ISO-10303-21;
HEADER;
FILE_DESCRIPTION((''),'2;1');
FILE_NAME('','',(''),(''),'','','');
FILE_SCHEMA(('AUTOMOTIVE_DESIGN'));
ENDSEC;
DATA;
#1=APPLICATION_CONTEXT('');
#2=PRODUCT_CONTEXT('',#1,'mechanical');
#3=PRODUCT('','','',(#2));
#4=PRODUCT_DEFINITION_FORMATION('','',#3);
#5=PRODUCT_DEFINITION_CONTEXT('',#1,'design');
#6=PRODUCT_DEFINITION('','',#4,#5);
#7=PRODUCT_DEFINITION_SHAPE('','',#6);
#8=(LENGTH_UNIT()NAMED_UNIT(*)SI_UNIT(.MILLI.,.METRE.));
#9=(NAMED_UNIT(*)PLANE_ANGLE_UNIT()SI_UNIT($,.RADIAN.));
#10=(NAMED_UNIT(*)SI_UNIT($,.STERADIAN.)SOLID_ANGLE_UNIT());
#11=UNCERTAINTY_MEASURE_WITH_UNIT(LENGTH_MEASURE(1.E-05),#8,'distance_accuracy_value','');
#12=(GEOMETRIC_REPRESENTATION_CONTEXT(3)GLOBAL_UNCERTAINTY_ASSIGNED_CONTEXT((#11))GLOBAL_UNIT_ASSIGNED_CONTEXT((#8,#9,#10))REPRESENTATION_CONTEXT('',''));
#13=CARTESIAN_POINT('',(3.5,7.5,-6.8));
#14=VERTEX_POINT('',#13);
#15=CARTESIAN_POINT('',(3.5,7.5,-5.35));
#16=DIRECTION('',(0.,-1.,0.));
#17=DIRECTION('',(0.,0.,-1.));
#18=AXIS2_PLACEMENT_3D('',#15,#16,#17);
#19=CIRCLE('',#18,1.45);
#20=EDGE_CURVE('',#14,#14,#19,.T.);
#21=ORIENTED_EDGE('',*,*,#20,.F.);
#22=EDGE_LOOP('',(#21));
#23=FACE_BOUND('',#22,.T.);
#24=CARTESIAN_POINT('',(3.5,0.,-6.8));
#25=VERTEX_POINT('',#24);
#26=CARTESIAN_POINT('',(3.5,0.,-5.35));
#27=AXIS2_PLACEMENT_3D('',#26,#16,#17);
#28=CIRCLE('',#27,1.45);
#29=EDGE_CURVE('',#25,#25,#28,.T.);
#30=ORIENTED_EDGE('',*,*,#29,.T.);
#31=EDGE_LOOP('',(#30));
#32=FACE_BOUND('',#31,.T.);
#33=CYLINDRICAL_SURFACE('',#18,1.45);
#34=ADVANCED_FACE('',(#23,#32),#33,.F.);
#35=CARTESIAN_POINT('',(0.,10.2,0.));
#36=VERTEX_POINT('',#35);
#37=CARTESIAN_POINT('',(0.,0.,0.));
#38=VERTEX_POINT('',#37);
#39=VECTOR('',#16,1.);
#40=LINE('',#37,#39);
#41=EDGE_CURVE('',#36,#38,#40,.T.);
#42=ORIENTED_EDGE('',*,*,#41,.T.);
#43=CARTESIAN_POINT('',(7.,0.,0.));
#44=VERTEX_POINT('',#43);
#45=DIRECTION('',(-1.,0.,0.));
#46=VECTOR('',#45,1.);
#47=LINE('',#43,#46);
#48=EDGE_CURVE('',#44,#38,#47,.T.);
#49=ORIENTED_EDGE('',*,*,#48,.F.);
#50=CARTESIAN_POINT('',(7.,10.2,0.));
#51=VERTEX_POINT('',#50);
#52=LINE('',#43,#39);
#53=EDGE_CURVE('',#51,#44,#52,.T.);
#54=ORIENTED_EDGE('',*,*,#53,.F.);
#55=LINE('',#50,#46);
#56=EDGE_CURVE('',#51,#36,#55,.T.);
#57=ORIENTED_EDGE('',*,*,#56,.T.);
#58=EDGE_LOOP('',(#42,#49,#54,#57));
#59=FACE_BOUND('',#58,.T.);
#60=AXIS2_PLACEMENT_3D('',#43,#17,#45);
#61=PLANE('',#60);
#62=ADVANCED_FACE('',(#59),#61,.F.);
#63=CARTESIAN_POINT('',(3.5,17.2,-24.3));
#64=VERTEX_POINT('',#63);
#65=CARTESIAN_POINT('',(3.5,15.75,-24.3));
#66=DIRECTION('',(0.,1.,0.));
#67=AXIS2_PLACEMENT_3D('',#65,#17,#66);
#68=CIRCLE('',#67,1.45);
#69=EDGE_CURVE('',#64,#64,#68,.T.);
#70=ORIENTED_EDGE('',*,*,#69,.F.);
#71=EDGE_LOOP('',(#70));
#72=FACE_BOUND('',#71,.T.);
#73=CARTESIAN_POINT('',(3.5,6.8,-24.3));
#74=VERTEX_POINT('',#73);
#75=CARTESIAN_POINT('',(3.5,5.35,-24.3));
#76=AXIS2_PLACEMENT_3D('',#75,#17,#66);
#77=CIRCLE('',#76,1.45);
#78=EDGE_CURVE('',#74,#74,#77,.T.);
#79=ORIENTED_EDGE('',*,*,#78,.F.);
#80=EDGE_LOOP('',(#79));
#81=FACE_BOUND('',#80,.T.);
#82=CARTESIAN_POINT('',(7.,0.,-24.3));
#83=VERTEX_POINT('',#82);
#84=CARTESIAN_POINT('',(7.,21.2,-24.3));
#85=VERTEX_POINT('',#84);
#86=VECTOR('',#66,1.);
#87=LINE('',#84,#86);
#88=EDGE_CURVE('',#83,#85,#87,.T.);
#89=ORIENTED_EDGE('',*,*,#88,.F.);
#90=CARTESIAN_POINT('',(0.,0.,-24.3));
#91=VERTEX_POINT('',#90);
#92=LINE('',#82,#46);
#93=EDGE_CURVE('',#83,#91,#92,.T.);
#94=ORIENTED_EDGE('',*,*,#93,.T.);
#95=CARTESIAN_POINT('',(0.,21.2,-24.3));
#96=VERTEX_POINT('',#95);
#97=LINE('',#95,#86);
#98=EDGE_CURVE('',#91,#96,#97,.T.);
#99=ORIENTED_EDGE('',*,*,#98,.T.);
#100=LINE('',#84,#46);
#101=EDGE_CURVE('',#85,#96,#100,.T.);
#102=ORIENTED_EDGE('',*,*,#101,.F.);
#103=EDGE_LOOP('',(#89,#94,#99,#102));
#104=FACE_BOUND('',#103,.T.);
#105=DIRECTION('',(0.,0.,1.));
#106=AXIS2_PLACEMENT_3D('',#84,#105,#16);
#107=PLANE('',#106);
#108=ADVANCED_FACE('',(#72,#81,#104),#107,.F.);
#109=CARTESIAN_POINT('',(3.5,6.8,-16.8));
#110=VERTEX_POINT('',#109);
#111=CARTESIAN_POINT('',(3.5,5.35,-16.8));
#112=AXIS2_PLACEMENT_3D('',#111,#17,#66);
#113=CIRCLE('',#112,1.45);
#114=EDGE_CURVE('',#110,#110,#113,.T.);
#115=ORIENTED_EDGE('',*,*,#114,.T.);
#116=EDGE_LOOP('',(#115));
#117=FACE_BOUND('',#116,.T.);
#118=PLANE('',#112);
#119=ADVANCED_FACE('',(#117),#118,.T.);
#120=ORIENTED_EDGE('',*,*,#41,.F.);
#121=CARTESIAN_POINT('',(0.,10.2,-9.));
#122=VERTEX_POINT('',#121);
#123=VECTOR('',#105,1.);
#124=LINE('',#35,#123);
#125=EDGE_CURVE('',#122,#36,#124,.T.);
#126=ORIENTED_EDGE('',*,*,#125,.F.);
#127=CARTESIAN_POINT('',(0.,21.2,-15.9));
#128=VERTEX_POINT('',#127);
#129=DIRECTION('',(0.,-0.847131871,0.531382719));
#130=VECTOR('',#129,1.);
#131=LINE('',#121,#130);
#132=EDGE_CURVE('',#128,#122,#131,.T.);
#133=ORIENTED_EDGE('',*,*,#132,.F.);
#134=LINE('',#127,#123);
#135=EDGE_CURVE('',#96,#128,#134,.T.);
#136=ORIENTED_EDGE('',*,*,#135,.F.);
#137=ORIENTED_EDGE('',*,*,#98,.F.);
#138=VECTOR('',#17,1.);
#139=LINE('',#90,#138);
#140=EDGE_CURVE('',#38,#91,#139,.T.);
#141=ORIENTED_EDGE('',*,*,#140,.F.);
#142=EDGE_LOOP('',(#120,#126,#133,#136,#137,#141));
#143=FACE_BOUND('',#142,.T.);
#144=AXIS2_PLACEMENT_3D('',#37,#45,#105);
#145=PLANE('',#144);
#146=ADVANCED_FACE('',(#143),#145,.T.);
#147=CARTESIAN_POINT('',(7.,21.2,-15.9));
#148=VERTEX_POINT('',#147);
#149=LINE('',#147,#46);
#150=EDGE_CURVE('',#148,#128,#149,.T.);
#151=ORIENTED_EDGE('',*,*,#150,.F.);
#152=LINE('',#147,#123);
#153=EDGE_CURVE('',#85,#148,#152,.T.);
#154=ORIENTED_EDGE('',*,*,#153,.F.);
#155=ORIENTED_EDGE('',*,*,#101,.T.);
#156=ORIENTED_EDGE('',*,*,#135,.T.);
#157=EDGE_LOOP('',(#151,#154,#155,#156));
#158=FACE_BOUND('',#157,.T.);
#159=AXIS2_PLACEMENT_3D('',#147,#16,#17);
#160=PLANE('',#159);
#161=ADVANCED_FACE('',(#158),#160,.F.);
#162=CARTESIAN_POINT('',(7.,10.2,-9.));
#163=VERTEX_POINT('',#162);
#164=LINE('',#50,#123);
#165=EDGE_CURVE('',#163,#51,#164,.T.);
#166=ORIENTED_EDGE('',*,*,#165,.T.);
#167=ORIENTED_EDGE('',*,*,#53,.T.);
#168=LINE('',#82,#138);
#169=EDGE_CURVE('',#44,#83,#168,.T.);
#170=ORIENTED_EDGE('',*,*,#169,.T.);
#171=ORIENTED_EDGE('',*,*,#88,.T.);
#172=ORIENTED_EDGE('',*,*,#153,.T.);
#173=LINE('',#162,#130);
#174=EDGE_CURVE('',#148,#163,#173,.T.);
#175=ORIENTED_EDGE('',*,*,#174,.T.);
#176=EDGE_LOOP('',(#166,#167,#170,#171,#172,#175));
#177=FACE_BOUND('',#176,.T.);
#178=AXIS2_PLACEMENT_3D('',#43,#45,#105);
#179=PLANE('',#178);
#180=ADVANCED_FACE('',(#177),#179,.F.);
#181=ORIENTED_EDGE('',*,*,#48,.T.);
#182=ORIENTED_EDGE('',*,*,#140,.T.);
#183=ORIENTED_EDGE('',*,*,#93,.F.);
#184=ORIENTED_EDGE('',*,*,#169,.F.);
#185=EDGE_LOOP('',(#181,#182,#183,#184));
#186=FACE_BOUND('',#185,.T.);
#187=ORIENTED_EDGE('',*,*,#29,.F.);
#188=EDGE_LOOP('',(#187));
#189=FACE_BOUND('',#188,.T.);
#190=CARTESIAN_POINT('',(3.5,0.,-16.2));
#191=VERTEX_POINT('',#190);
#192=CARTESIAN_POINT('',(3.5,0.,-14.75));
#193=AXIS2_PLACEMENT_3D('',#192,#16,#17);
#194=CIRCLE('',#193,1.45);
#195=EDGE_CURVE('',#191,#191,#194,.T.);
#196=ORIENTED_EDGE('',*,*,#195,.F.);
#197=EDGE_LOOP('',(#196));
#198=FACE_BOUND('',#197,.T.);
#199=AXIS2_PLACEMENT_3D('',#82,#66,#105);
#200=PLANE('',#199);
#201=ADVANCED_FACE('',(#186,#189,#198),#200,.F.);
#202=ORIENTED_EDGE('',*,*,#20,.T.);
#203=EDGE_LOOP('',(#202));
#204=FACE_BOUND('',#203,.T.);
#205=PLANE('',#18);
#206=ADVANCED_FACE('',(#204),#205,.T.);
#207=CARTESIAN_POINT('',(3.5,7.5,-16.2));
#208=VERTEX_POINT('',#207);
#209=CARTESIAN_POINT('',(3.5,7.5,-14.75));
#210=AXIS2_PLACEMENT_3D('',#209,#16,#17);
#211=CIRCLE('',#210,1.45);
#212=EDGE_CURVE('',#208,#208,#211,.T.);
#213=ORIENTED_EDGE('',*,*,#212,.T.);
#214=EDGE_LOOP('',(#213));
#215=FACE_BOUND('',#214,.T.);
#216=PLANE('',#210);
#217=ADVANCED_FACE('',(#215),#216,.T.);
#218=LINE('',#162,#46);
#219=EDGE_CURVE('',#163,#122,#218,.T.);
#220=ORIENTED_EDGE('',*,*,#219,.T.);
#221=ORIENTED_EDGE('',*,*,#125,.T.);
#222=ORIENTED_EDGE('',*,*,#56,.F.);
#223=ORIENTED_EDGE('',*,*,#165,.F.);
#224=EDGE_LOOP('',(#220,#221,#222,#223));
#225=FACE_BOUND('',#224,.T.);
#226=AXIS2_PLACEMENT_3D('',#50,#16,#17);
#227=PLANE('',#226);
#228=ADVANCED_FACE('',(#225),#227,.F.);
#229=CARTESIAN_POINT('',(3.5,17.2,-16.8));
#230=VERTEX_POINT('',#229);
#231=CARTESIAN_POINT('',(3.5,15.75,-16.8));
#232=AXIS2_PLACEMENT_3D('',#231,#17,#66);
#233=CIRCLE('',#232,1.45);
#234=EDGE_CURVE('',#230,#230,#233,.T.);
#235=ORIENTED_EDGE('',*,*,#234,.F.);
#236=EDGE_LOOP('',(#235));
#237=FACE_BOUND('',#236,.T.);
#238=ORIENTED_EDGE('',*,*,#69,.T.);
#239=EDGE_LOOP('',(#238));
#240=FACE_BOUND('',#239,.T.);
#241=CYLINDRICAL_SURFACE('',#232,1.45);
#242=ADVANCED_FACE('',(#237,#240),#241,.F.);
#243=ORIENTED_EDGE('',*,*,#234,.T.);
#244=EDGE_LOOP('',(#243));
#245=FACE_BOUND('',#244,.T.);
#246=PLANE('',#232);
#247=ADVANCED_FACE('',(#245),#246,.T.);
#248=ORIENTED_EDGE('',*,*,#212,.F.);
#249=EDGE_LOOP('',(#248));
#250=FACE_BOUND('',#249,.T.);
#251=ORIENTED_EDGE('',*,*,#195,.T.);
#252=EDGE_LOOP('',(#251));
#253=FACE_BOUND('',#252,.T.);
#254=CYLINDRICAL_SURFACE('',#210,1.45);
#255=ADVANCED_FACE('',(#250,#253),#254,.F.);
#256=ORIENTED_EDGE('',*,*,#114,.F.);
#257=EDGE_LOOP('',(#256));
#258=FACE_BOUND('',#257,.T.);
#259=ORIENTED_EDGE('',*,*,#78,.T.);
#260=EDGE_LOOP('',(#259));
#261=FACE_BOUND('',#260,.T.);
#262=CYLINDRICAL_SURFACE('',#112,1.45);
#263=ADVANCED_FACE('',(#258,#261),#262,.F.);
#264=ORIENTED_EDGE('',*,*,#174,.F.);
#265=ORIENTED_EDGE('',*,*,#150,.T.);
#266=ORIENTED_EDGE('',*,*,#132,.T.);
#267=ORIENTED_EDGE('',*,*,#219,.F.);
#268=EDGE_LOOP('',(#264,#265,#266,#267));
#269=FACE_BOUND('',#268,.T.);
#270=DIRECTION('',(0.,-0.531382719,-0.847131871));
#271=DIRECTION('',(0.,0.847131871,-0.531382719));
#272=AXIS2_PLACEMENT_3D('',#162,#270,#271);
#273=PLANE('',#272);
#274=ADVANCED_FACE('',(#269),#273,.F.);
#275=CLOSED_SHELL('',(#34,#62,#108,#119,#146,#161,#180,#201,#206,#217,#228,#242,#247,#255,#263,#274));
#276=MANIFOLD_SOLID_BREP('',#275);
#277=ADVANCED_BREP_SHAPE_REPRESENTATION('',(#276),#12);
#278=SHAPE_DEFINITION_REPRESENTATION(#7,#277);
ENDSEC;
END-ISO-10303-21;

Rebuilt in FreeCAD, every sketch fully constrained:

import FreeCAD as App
import Part
import Sketcher

V = App.Vector
Q = App.Units.Quantity


def add_polygon(sketch, points):
    """Adds a closed chain of lines whose ends are joined by coincident constraints."""
    first, n = sketch.GeometryCount, len(points)
    for a, b in zip(points, points[1:] + points[:1]):
        sketch.addGeometry(Part.LineSegment(App.Vector(*a, 0), App.Vector(*b, 0)), False)
    for i in range(n):
        sketch.addConstraint(Sketcher.Constraint("Coincident", first + i, 2, first + (i + 1) % n, 1))

doc = App.newDocument("Part")
body = doc.addObject("PartDesign::Body", "Body")

sketch1 = body.newObject("Sketcher::SketchObject", "Sketch")
sketch1.AttachmentSupport = (doc.getObject("YZ_Plane"), [""])
sketch1.MapMode = "FlatFace"
add_polygon(sketch1, [(10.2, 0), (0, 0), (0, -24.3), (21.2, -24.3), (21.2, -15.9), (10.2, -9)])
sketch1.addConstraint(Sketcher.Constraint("Horizontal", 0))
sketch1.addConstraint(Sketcher.Constraint("Vertical", 1))
sketch1.addConstraint(Sketcher.Constraint("Horizontal", 2))
sketch1.addConstraint(Sketcher.Constraint("Vertical", 3))
sketch1.addConstraint(Sketcher.Constraint("Vertical", 5))
sketch1.addConstraint(Sketcher.Constraint("Coincident", 0, 2, -1, 1))
sketch1.addConstraint(Sketcher.Constraint("DistanceY", 5, 1, 5, 2, Q("9 mm")))
sketch1.addConstraint(Sketcher.Constraint("DistanceX", 0, 2, 0, 1, Q("10.2 mm")))
sketch1.addConstraint(Sketcher.Constraint("DistanceX", 2, 1, 2, 2, Q("21.2 mm")))
sketch1.addConstraint(Sketcher.Constraint("DistanceY", 1, 2, 1, 1, Q("24.3 mm")))
sketch1.addConstraint(Sketcher.Constraint("DistanceY", 3, 1, 3, 2, Q("8.4 mm")))
pad1 = body.newObject("PartDesign::Pad", "Pad")
pad1.Profile = sketch1
pad1.Length = 7

sketch2 = body.newObject("Sketcher::SketchObject", "Sketch001")
sketch2.AttachmentSupport = (doc.getObject("XZ_Plane"), [""])
sketch2.MapMode = "FlatFace"
sketch2.addGeometry(Part.Circle(V(3.5, -5.35, 0), V(0, 0, 1), 1.45), False)
sketch2.addGeometry(Part.Circle(V(3.5, -14.75, 0), V(0, 0, 1), 1.45), False)
sketch2.addConstraint(Sketcher.Constraint("Equal", 0, 1))
sketch2.addConstraint(Sketcher.Constraint("Vertical", 0, 3, 1, 3))
sketch2.addConstraint(Sketcher.Constraint("Diameter", 0, Q("2.9 mm")))
sketch2.addConstraint(Sketcher.Constraint("DistanceX", -1, 1, 0, 3, Q("3.5 mm")))
sketch2.addConstraint(Sketcher.Constraint("DistanceY", 1, 3, 0, 3, Q("9.4 mm")))
sketch2.addConstraint(Sketcher.Constraint("DistanceY", 0, 3, -1, 1, Q("5.35 mm")))
pocket1 = body.newObject("PartDesign::Pocket", "Pocket")
pocket1.Profile = sketch2
pocket1.Length = 7.5

sketch3 = body.newObject("Sketcher::SketchObject", "Sketch002")
sketch3.AttachmentSupport = (doc.getObject("XY_Plane"), [""])
sketch3.MapMode = "FlatFace"
sketch3.AttachmentOffset = App.Placement(V(0, 0, -24.3), App.Rotation())
sketch3.addGeometry(Part.Circle(V(3.5, 15.75, 0), V(0, 0, 1), 1.45), False)
sketch3.addGeometry(Part.Circle(V(3.5, 5.35, 0), V(0, 0, 1), 1.45), False)
sketch3.addConstraint(Sketcher.Constraint("Equal", 0, 1))
sketch3.addConstraint(Sketcher.Constraint("Vertical", 0, 3, 1, 3))
sketch3.addConstraint(Sketcher.Constraint("Diameter", 0, Q("2.9 mm")))
sketch3.addConstraint(Sketcher.Constraint("DistanceX", -1, 1, 0, 3, Q("3.5 mm")))
sketch3.addConstraint(Sketcher.Constraint("DistanceY", 1, 3, 0, 3, Q("10.4 mm")))
sketch3.addConstraint(Sketcher.Constraint("DistanceY", -1, 1, 0, 3, Q("15.75 mm")))
pocket2 = body.newObject("PartDesign::Pocket", "Pocket001")
pocket2.Profile = sketch3
pocket2.Length = 7.5
pocket2.Reversed = True

doc.recompute()
